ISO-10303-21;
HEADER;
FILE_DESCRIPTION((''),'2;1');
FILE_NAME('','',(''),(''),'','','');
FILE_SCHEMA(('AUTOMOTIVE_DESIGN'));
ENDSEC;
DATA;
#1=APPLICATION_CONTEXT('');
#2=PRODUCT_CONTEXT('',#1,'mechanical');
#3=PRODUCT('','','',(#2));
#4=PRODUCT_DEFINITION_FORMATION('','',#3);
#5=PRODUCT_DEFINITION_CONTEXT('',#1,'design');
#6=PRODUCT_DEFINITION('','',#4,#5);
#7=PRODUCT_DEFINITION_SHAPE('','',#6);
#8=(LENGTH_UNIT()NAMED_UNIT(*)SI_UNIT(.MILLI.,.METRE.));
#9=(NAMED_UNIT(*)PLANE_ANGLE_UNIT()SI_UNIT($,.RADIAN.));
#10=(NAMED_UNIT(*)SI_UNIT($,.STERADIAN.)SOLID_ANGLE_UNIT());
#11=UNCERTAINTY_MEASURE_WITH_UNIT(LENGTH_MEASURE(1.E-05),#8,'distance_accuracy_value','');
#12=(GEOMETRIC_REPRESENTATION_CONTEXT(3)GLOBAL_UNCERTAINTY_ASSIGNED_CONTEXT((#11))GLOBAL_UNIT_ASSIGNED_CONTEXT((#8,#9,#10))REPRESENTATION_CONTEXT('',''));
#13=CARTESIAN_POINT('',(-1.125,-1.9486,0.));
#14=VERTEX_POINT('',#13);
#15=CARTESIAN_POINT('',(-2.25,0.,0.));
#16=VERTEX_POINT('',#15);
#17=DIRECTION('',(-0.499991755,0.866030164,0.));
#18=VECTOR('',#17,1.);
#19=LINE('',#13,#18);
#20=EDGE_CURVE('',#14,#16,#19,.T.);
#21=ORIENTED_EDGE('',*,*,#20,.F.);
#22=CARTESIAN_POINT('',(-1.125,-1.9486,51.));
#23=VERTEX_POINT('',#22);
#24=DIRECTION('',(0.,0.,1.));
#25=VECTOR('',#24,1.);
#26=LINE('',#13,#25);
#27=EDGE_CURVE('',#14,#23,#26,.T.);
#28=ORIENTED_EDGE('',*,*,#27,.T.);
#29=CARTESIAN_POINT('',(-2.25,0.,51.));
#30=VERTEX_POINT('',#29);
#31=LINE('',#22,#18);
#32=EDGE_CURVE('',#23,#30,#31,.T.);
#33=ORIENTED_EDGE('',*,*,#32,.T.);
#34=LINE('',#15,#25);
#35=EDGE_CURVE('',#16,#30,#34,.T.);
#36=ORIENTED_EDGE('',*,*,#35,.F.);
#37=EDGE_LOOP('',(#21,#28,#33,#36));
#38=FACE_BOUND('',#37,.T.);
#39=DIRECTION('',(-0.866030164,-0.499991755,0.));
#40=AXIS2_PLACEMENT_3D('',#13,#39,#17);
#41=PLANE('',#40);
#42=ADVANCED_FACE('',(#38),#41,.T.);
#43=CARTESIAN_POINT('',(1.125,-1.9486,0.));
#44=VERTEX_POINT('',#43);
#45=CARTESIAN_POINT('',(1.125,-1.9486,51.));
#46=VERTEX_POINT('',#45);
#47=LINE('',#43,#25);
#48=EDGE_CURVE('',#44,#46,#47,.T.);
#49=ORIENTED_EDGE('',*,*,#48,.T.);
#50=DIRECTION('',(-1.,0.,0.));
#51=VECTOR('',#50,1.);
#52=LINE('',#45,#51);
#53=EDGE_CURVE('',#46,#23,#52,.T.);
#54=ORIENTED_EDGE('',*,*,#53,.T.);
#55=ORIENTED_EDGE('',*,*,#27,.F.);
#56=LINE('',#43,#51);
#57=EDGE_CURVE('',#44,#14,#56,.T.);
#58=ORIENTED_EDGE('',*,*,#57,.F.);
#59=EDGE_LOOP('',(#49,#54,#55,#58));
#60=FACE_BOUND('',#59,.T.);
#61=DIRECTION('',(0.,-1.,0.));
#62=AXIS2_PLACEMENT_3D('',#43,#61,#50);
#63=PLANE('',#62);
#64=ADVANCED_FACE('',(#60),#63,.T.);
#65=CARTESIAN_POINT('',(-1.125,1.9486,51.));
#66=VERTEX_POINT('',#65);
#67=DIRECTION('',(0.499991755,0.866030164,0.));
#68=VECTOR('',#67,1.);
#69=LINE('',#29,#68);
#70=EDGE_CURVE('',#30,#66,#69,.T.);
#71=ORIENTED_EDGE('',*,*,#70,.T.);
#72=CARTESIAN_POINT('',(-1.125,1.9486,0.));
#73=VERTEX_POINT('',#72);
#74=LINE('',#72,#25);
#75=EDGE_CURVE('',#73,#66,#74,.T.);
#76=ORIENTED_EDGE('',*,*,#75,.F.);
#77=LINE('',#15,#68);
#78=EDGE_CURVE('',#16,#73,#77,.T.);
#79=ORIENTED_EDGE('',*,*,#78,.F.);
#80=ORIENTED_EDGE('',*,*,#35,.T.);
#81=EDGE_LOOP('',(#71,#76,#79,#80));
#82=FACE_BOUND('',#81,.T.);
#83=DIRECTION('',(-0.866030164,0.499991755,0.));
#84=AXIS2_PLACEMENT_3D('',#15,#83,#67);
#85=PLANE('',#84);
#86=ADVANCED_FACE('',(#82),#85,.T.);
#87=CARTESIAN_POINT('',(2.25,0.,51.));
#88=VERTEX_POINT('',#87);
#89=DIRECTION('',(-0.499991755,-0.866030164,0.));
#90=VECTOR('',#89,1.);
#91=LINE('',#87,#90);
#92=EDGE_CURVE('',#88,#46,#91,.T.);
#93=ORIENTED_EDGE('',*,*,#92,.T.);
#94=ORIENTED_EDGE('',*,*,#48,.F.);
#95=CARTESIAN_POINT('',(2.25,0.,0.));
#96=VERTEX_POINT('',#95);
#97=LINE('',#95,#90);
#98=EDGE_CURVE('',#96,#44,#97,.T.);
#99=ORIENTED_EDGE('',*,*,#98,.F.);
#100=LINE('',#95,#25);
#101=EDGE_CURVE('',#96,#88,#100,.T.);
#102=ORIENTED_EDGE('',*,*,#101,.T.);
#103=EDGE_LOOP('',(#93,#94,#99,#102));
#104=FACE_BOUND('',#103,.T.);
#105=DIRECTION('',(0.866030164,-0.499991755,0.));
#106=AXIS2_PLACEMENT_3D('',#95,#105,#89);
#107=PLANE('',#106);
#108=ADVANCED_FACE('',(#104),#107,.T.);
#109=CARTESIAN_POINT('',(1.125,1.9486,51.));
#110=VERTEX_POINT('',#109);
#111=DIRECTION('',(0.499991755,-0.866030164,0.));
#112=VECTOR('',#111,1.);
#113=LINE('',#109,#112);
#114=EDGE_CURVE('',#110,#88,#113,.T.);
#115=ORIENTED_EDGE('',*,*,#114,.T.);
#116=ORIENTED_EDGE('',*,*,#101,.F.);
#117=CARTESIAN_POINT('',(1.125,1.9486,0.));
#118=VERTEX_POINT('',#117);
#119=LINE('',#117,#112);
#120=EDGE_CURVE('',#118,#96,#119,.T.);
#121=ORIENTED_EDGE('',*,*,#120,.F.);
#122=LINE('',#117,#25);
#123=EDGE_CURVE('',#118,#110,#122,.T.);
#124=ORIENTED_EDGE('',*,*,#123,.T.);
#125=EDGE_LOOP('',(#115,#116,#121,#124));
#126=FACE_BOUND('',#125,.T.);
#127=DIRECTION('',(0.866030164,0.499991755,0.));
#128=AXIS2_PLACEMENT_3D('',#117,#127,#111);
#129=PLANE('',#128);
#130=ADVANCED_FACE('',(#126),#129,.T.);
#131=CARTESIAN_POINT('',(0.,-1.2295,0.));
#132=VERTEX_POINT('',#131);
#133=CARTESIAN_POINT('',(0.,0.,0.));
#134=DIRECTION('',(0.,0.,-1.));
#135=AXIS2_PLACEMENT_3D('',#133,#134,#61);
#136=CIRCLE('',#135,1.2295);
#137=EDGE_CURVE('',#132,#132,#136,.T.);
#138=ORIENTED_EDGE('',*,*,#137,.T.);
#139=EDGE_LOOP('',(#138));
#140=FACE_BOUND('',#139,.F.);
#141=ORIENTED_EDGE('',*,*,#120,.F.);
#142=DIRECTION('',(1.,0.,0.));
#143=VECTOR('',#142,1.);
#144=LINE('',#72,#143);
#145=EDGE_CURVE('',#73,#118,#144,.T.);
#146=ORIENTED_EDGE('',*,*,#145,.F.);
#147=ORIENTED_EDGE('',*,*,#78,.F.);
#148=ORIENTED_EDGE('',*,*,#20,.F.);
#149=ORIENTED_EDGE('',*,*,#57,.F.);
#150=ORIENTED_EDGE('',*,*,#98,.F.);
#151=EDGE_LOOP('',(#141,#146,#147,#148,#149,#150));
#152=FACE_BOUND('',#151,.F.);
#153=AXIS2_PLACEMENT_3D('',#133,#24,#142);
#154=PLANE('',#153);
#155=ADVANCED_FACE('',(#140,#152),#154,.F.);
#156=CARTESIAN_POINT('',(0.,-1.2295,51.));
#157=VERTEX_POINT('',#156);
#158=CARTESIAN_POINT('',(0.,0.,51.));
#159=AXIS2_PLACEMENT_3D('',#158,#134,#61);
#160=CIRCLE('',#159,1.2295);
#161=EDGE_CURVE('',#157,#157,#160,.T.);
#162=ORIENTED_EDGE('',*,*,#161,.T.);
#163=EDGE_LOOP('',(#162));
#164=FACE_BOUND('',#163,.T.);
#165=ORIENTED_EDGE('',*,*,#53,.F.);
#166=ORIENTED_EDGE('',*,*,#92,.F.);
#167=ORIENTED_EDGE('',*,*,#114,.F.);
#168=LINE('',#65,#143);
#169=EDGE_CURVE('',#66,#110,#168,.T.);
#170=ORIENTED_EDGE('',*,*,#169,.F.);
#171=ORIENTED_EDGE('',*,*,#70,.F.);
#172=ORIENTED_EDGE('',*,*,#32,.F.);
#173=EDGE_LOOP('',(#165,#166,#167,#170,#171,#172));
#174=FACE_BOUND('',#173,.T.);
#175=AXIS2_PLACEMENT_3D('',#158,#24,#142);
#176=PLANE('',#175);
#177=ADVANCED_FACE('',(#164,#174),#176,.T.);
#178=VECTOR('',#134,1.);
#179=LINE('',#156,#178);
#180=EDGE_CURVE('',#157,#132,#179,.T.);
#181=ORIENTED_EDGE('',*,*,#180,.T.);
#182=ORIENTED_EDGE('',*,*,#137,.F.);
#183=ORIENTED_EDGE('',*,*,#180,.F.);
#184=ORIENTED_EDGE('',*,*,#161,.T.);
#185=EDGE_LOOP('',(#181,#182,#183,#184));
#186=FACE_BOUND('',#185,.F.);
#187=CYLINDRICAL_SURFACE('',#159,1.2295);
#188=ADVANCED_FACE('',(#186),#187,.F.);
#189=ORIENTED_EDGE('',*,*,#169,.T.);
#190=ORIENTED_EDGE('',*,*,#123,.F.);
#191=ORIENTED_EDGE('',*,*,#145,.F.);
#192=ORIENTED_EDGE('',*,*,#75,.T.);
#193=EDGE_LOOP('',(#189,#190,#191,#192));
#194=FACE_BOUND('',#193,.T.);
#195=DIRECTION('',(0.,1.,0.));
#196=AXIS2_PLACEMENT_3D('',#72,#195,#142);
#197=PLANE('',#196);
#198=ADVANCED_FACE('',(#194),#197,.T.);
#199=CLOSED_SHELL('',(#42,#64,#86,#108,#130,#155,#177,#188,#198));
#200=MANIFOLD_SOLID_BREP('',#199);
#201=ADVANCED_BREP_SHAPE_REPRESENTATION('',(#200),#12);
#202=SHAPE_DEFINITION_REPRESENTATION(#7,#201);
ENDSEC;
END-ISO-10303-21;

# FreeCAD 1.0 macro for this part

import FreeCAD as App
import Part
import Sketcher
Q = App.Units.Quantity


def add_polygon(sketch, points):
    """Adds a closed chain of lines whose ends are joined by coincident constraints."""
    first, n = sketch.GeometryCount, len(points)
    for a, b in zip(points, points[1:] + points[:1]):
        sketch.addGeometry(Part.LineSegment(App.Vector(*a, 0), App.Vector(*b, 0)), False)
    for i in range(n):
        sketch.addConstraint(Sketcher.Constraint("Coincident", first + i, 2, first + (i + 1) % n, 1))

doc = App.newDocument("Part")
body = doc.addObject("PartDesign::Body", "Body")

# Sketch on XY plane
sketch1 = body.newObject("Sketcher::SketchObject", "Sketch")
sketch1.AttachmentSupport = (doc.getObject("XY_Plane"), [""])
sketch1.MapMode = "FlatFace"
add_polygon(sketch1, [(2.2, 0), (1.1, 1.9), (-1.1, 1.9), (-2.2, 0), (-1.1, -1.9), (1.1, -1.9)])  # lines 0-5
sketch1.addConstraint([
    Sketcher.Constraint("Horizontal", 1),
    Sketcher.Constraint("Horizontal", 4),
    Sketcher.Constraint("Symmetric", 0, 2, 3, 2, -1, 1),
    Sketcher.Constraint("Symmetric", 2, 2, 5, 2, -1, 1),
    Sketcher.Constraint("PointOnObject", 2, 2, -1),
    Sketcher.Constraint("Parallel", 2, 5),
    Sketcher.Constraint("Vertical", 1, 2, 3, 2),
    Sketcher.Constraint("DistanceX", 2, 2, 5, 2, 4.5),
    Sketcher.Constraint("Angle", 0, Q("119.9995 deg")),
    Sketcher.Constraint("DistanceX", 1, 2, 1, 1, 2.25),
])
pad1 = body.newObject("PartDesign::Pad", "Pad")
pad1.Profile = sketch1
pad1.Length = 51

# Sketch on XY plane
sketch2 = body.newObject("Sketcher::SketchObject", "Sketch001")
sketch2.AttachmentSupport = (doc.getObject("XY_Plane"), [""])
sketch2.MapMode = "FlatFace"
sketch2.AttachmentOffset = App.Placement(App.Vector(0, 0, 51), App.Rotation())
sketch2.addGeometry(Part.Circle(App.Vector(0, 0, 0), App.Vector(0, 0, 1), 1.2), False)
sketch2.addConstraint([
    Sketcher.Constraint("Coincident", 0, 3, -1, 1),
    Sketcher.Constraint("Diameter", 0, 2.459),
])
doc.recompute()
hole = body.newObject("PartDesign::Hole", "Hole")
hole.Profile = sketch2
hole.ThreadType = "None"
hole.Diameter = 2.459
hole.DepthType = "ThroughAll"

doc.recompute()
